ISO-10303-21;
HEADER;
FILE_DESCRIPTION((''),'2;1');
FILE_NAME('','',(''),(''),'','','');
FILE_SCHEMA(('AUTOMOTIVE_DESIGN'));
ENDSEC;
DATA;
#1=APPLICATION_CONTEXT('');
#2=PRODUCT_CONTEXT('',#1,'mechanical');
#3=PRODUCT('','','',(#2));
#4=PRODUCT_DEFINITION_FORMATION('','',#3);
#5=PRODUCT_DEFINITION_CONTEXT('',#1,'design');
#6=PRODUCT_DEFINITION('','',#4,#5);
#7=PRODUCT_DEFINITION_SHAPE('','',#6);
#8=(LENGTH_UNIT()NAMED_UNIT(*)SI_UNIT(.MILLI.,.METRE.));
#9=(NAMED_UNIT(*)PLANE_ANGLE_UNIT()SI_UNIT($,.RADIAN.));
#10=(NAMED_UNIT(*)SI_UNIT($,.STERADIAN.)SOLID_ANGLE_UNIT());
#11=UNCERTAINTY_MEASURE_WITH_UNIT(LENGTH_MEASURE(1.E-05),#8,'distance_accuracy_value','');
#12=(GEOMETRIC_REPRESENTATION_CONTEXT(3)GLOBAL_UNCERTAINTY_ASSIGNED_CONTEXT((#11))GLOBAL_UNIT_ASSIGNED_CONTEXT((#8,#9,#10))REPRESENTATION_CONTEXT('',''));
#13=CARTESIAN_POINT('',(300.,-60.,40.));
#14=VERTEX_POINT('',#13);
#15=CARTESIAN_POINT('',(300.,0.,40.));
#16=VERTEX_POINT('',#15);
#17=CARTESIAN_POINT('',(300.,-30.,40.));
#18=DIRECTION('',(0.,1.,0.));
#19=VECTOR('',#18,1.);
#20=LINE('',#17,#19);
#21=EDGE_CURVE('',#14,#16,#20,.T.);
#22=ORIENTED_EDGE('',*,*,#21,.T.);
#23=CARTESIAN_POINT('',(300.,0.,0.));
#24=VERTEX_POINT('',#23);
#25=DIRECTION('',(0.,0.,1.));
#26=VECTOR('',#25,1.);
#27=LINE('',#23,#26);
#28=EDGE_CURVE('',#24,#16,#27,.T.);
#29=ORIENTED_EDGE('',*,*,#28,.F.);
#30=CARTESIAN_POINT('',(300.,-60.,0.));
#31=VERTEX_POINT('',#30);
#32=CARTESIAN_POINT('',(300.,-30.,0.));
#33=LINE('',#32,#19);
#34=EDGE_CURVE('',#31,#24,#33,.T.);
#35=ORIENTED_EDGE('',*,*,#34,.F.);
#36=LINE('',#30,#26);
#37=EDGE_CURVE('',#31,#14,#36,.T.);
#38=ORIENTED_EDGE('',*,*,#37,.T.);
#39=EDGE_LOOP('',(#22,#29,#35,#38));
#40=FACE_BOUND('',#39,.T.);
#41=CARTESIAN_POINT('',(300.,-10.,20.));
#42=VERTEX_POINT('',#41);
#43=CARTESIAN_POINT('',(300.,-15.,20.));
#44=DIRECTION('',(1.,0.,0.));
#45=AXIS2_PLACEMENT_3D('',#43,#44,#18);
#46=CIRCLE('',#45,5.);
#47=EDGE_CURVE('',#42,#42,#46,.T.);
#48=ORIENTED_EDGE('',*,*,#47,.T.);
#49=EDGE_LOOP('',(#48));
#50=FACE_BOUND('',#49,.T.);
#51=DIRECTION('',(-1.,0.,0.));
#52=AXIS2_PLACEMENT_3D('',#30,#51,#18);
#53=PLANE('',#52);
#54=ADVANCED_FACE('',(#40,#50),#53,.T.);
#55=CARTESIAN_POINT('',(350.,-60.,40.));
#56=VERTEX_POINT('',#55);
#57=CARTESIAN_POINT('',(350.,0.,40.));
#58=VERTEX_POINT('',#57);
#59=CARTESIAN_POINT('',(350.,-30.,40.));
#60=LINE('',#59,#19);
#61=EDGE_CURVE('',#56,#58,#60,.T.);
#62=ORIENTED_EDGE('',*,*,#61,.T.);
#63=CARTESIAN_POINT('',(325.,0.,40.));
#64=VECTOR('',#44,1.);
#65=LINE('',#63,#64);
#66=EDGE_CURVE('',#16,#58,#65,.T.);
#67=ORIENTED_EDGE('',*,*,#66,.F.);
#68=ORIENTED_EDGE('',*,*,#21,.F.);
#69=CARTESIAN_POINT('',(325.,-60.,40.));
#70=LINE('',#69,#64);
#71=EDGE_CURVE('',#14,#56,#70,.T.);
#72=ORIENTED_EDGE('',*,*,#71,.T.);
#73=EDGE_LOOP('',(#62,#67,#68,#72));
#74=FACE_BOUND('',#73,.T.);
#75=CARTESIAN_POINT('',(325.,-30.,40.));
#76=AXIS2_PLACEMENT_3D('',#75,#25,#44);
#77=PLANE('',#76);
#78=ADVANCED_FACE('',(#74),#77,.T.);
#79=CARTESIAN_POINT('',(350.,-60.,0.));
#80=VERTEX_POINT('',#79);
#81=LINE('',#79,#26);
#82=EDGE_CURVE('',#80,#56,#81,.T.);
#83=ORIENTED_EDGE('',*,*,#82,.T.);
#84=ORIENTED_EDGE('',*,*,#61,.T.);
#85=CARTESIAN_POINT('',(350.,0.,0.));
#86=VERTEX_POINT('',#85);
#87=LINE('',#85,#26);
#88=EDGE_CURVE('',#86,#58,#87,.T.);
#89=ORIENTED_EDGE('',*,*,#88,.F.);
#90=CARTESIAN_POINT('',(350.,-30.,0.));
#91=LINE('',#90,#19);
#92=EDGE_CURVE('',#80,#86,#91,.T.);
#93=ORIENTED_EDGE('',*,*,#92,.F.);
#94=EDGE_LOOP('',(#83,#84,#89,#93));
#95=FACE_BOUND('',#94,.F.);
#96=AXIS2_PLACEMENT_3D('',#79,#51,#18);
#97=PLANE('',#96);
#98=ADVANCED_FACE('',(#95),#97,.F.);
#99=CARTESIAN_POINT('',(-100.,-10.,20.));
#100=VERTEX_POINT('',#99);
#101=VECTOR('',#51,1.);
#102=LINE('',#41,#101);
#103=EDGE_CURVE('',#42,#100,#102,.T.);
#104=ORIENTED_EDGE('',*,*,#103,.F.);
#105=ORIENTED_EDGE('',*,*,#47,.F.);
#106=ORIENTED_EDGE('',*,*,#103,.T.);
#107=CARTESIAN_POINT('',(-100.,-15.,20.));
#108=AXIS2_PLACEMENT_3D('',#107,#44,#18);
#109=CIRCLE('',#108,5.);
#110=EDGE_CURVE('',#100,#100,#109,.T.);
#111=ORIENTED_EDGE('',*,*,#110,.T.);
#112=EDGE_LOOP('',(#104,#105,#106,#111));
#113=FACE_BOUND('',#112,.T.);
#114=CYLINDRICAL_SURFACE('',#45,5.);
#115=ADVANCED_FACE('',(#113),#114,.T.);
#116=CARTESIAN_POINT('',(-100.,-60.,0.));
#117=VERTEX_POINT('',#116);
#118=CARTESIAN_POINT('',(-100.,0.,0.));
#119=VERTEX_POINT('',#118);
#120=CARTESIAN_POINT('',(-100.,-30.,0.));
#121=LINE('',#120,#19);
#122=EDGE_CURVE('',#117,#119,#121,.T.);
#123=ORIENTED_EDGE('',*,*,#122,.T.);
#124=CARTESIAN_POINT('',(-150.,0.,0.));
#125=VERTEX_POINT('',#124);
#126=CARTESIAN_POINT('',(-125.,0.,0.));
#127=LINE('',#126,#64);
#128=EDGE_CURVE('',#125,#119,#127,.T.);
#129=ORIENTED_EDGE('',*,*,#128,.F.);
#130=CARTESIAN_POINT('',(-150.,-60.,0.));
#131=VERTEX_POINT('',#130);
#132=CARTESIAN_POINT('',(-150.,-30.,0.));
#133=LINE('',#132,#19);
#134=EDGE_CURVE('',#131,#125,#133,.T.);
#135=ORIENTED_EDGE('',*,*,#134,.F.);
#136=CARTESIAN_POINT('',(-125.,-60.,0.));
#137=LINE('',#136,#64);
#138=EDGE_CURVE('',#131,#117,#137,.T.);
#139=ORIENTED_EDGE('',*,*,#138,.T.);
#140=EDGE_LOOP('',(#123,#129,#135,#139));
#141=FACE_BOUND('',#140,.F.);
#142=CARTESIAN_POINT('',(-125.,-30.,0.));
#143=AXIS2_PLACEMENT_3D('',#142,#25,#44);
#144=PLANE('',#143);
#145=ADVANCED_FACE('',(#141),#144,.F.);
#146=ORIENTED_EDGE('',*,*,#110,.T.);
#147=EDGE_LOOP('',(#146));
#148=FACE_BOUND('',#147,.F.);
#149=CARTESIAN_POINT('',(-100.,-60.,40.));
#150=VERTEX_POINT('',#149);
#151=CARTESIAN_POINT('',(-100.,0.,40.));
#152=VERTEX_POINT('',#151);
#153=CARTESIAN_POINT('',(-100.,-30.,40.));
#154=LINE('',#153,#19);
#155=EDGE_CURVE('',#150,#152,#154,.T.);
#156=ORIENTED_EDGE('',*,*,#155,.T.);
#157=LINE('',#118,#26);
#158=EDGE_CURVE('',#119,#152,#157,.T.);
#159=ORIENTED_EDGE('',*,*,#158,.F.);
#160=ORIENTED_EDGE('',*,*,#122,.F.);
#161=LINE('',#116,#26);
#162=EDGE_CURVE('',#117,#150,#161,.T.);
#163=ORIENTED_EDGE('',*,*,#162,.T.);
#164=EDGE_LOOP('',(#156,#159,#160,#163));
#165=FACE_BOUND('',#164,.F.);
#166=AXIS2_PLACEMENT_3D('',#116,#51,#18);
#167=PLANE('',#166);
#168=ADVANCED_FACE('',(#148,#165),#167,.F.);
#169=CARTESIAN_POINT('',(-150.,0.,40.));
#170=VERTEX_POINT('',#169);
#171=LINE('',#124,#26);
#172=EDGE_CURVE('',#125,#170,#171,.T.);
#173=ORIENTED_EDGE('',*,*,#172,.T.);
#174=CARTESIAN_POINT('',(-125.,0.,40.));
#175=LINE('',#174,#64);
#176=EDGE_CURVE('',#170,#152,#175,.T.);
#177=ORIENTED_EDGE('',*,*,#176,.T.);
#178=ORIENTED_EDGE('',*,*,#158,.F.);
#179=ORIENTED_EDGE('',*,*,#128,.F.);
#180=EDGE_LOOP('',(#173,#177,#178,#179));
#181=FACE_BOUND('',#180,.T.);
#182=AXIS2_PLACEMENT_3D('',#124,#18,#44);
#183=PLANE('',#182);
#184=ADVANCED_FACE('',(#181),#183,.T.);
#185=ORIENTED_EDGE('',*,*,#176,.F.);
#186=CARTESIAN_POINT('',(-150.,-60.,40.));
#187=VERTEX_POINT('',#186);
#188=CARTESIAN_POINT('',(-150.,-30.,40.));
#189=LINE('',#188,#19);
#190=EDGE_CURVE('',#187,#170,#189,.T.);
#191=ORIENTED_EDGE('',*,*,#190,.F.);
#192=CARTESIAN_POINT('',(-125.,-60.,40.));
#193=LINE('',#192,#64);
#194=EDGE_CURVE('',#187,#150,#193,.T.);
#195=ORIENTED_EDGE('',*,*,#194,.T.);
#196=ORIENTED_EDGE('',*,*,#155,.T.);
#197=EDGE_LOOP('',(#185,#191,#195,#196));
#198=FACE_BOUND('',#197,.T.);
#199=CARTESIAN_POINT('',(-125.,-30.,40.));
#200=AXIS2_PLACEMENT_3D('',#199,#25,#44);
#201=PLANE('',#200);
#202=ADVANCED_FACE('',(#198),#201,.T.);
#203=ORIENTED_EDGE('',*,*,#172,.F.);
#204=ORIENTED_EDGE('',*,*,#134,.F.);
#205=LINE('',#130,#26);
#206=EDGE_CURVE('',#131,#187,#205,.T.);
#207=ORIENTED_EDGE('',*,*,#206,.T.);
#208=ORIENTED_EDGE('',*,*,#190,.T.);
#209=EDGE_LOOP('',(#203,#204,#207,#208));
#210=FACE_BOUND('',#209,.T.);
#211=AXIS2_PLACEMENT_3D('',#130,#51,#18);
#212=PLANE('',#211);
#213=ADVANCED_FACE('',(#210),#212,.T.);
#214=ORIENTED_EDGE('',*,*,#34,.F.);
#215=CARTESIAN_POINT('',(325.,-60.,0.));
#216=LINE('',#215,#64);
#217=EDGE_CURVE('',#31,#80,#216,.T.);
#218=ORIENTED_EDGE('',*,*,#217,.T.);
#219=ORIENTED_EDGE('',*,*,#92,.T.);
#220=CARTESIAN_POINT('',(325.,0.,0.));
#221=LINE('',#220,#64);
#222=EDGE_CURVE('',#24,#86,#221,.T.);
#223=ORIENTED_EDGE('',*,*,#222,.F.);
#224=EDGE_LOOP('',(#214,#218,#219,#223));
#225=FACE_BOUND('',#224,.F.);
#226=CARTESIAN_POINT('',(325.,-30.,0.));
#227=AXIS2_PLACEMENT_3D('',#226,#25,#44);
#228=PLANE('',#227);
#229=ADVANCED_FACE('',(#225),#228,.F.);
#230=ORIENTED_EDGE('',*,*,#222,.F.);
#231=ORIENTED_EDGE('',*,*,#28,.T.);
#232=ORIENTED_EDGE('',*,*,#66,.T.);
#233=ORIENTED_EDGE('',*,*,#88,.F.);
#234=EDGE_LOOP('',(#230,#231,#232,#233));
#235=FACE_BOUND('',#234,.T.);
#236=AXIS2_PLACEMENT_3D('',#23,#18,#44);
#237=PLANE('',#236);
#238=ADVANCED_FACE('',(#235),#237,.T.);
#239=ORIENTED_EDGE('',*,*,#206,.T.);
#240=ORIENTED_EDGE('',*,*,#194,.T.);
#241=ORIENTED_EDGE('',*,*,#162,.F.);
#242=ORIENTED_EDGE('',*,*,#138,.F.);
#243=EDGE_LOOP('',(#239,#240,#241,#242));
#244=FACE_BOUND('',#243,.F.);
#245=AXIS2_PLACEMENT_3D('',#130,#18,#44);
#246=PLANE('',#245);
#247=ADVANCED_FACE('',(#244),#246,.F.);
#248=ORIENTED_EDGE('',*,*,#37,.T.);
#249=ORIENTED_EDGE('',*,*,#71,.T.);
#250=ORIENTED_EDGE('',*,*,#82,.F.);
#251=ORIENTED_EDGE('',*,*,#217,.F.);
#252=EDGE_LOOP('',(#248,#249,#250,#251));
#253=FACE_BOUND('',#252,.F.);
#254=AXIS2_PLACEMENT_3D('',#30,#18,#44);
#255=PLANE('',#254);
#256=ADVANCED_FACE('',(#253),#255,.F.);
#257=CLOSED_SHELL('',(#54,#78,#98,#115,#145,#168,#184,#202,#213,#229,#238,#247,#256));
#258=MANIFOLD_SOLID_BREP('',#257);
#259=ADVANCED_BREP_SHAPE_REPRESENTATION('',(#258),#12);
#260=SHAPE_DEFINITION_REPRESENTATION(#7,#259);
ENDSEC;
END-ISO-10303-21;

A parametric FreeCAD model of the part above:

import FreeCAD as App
import Part
import Sketcher

doc = App.newDocument("Part")
params = doc.addObject("Spreadsheet::Sheet", "Params")
for row, (alias, value) in enumerate([
    ("sketch1_width", "50 mm"),
    ("sketch1_height", "60 mm"),
    ("pad1_length", "40 mm"),
    ("sketch2_width", "50 mm"),
    ("sketch2_height", "60 mm"),
    ("pad2_length", "40 mm"),
    ("sketch3_diameter", "10 mm"),
    ("pad3_length", "400 mm"),
], start=1):
    params.set(f"A{row}", alias)
    params.set(f"B{row}", "=" + value)
    params.setAlias(f"B{row}", alias)

body = doc.addObject("PartDesign::Body", "Body")

# Sketch on XY plane
sketch1 = body.newObject("Sketcher::SketchObject", "Sketch")
sketch1.AttachmentSupport = (doc.getObject("XY_Plane"), [""])
sketch1.MapMode = "FlatFace"
sketch1.addGeometry(Part.LineSegment(App.Vector(-150, 0, 0), App.Vector(-150, -60, 0)), False)
sketch1.addGeometry(Part.LineSegment(App.Vector(-150, -60, 0), App.Vector(-100, -60, 0)), False)
sketch1.addGeometry(Part.LineSegment(App.Vector(-100, -60, 0), App.Vector(-100, 0, 0)), False)
sketch1.addGeometry(Part.LineSegment(App.Vector(-100, 0, 0), App.Vector(-150, 0, 0)), False)
sketch1.addConstraint(Sketcher.Constraint("Coincident", 0, 2, 1, 1))
sketch1.addConstraint(Sketcher.Constraint("Coincident", 1, 2, 2, 1))
sketch1.addConstraint(Sketcher.Constraint("Coincident", 2, 2, 3, 1))
sketch1.addConstraint(Sketcher.Constraint("Coincident", 3, 2, 0, 1))
sketch1.addConstraint(Sketcher.Constraint("Vertical", 0))
sketch1.addConstraint(Sketcher.Constraint("Horizontal", 1))
sketch1.addConstraint(Sketcher.Constraint("Vertical", 2))
sketch1.addConstraint(Sketcher.Constraint("Horizontal", 3))
sketch1.addConstraint(Sketcher.Constraint("PointOnObject", 2, 2, -1))
sketch1.addConstraint(Sketcher.Constraint("DistanceX", 1, 1, 1, 2, 50.0))
sketch1.addConstraint(Sketcher.Constraint("DistanceY", 0, 2, 0, 1, 60.0))
sketch1.addConstraint(Sketcher.Constraint("DistanceX", 0, 2, -1, 1, 150.0))
sketch1.setExpression("Constraints[9]", "Params.sketch1_width")
sketch1.setExpression("Constraints[10]", "Params.sketch1_height")
pad1 = body.newObject("PartDesign::Pad", "Pad")
pad1.Profile = sketch1
pad1.setExpression("Length", "Params.pad1_length")
body2 = doc.addObject("PartDesign::Body", "Body001")

# Sketch on XY plane
sketch2 = body2.newObject("Sketcher::SketchObject", "Sketch001")
sketch2.AttachmentSupport = (doc.getObject("XY_Plane001"), [""])
sketch2.MapMode = "FlatFace"
sketch2.addGeometry(Part.LineSegment(App.Vector(300, 0, 0), App.Vector(300, -60, 0)), False)
sketch2.addGeometry(Part.LineSegment(App.Vector(300, -60, 0), App.Vector(350, -60, 0)), False)
sketch2.addGeometry(Part.LineSegment(App.Vector(350, -60, 0), App.Vector(350, 0, 0)), False)
sketch2.addGeometry(Part.LineSegment(App.Vector(350, 0, 0), App.Vector(300, 0, 0)), False)
sketch2.addConstraint(Sketcher.Constraint("Coincident", 0, 2, 1, 1))
sketch2.addConstraint(Sketcher.Constraint("Coincident", 1, 2, 2, 1))
sketch2.addConstraint(Sketcher.Constraint("Coincident", 2, 2, 3, 1))
sketch2.addConstraint(Sketcher.Constraint("Coincident", 3, 2, 0, 1))
sketch2.addConstraint(Sketcher.Constraint("Vertical", 0))
sketch2.addConstraint(Sketcher.Constraint("Horizontal", 1))
sketch2.addConstraint(Sketcher.Constraint("Vertical", 2))
sketch2.addConstraint(Sketcher.Constraint("Horizontal", 3))
sketch2.addConstraint(Sketcher.Constraint("PointOnObject", 2, 2, -1))
sketch2.addConstraint(Sketcher.Constraint("DistanceX", 1, 1, 1, 2, 50.0))
sketch2.addConstraint(Sketcher.Constraint("DistanceY", 0, 2, 0, 1, 60.0))
sketch2.addConstraint(Sketcher.Constraint("DistanceX", -1, 1, 0, 2, 300.0))
sketch2.setExpression("Constraints[9]", "Params.sketch2_width")
sketch2.setExpression("Constraints[10]", "Params.sketch2_height")
pad2 = body2.newObject("PartDesign::Pad", "Pad001")
pad2.Profile = sketch2
pad2.setExpression("Length", "Params.pad2_length")
body.AllowCompound = True
doc.recompute()

boolean = body.newObject("PartDesign::Boolean", "Boolean")
boolean.Type = "Fuse"
boolean.addObjects([body2])

# Sketch on YZ plane
sketch3 = body.newObject("Sketcher::SketchObject", "Sketch002")
sketch3.AttachmentSupport = (doc.getObject("YZ_Plane"), [""])
sketch3.MapMode = "FlatFace"
sketch3.AttachmentOffset = App.Placement(App.Vector(0, 0, 300), App.Rotation())
sketch3.addGeometry(Part.Circle(App.Vector(-15, 20, 0), App.Vector(0, 0, 1), 5), False)
sketch3.addConstraint(Sketcher.Constraint("Diameter", 0, 10.0))
sketch3.addConstraint(Sketcher.Constraint("DistanceX", 0, 3, -1, 1, 15.0))
sketch3.addConstraint(Sketcher.Constraint("DistanceY", -1, 1, 0, 3, 20.0))
sketch3.setExpression("Constraints[0]", "Params.sketch3_diameter")
pad3 = body.newObject("PartDesign::Pad", "Pad002")
pad3.Profile = sketch3
pad3.setExpression("Length", "Params.pad3_length")
pad3.Reversed = True

doc.recompute()
